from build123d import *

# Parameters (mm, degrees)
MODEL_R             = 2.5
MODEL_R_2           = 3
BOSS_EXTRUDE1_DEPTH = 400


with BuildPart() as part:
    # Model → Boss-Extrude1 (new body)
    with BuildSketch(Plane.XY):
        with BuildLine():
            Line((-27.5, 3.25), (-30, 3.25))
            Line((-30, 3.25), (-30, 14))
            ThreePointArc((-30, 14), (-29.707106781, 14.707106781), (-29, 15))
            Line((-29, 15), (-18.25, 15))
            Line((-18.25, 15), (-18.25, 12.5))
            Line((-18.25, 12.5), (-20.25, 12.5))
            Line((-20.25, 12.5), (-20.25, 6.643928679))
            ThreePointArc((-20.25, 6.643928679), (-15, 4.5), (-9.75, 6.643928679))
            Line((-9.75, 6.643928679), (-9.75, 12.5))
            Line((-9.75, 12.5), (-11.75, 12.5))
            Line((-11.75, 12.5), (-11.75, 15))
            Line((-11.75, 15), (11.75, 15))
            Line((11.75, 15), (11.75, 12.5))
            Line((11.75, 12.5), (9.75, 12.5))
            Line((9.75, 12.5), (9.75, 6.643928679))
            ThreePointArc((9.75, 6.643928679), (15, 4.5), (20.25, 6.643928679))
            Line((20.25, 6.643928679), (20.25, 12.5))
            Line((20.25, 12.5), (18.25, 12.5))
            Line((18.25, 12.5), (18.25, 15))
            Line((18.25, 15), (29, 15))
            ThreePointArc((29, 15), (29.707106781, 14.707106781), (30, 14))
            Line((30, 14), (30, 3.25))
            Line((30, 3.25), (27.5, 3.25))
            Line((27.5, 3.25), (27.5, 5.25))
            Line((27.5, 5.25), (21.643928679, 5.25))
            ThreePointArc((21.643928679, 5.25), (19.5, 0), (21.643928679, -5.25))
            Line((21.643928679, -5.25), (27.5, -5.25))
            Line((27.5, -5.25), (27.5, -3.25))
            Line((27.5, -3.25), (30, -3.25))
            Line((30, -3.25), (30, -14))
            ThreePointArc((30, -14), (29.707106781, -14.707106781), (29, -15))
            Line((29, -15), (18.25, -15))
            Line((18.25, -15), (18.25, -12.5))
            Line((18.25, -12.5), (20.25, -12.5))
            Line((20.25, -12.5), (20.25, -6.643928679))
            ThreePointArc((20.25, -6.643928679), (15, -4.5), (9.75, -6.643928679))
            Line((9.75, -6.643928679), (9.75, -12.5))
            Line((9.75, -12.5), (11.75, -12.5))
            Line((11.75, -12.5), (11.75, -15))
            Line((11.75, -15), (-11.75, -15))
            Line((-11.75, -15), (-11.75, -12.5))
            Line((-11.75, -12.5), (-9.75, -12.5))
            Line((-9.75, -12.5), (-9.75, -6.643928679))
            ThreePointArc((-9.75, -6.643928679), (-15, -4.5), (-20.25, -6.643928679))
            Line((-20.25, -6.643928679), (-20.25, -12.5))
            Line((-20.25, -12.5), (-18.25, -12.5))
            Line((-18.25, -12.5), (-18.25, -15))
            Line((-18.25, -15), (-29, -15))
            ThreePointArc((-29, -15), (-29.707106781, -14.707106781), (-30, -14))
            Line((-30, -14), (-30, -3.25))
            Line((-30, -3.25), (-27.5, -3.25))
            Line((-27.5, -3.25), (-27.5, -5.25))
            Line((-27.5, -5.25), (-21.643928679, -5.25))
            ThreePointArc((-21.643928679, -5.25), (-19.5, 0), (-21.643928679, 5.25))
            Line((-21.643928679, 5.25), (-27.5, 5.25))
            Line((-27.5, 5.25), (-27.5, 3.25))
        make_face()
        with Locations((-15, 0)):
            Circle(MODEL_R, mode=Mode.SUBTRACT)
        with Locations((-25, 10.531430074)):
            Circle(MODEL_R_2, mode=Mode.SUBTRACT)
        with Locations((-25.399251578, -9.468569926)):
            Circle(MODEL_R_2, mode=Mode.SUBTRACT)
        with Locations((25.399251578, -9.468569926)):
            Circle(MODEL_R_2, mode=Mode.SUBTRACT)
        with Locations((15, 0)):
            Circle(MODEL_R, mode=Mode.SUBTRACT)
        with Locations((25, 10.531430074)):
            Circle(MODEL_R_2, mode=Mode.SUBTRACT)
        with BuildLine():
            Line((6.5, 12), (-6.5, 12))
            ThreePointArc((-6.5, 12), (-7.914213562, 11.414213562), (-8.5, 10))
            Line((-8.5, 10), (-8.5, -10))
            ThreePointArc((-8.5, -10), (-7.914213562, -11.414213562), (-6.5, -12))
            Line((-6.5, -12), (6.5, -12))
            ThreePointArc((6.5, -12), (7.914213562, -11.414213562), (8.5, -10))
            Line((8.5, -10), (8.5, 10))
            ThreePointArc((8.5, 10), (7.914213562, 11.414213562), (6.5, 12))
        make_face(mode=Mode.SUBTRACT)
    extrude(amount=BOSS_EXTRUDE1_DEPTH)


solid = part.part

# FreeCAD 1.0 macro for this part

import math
import FreeCAD as App
import Part
import Sketcher
from FreeCAD import Vector

doc = App.newDocument("Part")
params = doc.addObject("Spreadsheet::Sheet", "Params")
for row, (alias, value) in enumerate([
    ("sketch1_diameter", "6 mm"),
    ("sketch1_diameter2", "5 mm"),
    ("sketch1_radius", "1 mm"),
    ("sketch1_radius2", "2 mm"),
    ("sketch1_radius3", "7.5 mm"),
    ("pad1_length", "400 mm"),
], start=1):
    params.set(f"A{row}", alias)
    params.set(f"B{row}", "=" + value)
    params.setAlias(f"B{row}", alias)

body = doc.addObject("PartDesign::Body", "Body")

# Sketch on XY plane
sketch1 = body.newObject("Sketcher::SketchObject", "Sketch")
sketch1.AttachmentSupport = (doc.getObject("XY_Plane"), [""])
sketch1.MapMode = "FlatFace"
sketch1.addGeometry([
    Part.LineSegment(Vector(-30, 3.2, 0), Vector(-27.5, 3.2, 0)),  # 0
    Part.LineSegment(Vector(-27.5, 3.2, 0), Vector(-27.5, 5.2, 0)),  # 1
    Part.LineSegment(Vector(-27.5, 5.2, 0), Vector(-21.6, 5.2, 0)),  # 2
    Part.ArcOfCircle(Part.Circle(Vector(-27, 0, 0), Vector(0, 0, 1), 7.5), math.radians(-44), math.radians(44)),  # 3
    Part.LineSegment(Vector(-21.6, -5.2, 0), Vector(-27.5, -5.2, 0)),  # 4
    Part.LineSegment(Vector(-27.5, -5.2, 0), Vector(-27.5, -3.2, 0)),  # 5
    Part.LineSegment(Vector(-27.5, -3.2, 0), Vector(-30, -3.2, 0)),  # 6
    Part.LineSegment(Vector(-30, -3.2, 0), Vector(-30, -14, 0)),  # 7
    Part.ArcOfCircle(Part.Circle(Vector(-29, -14, 0), Vector(0, 0, 1), 1), math.radians(-180), math.radians(-90)),  # 8
    Part.LineSegment(Vector(-29, -15, 0), Vector(-18.2, -15, 0)),  # 9
    Part.LineSegment(Vector(-18.2, -15, 0), Vector(-18.2, -12.5, 0)),  # 10
    Part.LineSegment(Vector(-18.2, -12.5, 0), Vector(-20.2, -12.5, 0)),  # 11
    Part.LineSegment(Vector(-20.2, -12.5, 0), Vector(-20.2, -6.6, 0)),  # 12
    Part.ArcOfCircle(Part.Circle(Vector(-15, -12, 0), Vector(0, 0, 1), 7.5), math.radians(46), math.radians(134)),  # 13
    Part.LineSegment(Vector(-9.8, -6.6, 0), Vector(-9.8, -12.5, 0)),  # 14
    Part.LineSegment(Vector(-9.8, -12.5, 0), Vector(-11.8, -12.5, 0)),  # 15
    Part.LineSegment(Vector(-11.8, -12.5, 0), Vector(-11.8, -15, 0)),  # 16
    Part.LineSegment(Vector(-11.8, -15, 0), Vector(11.8, -15, 0)),  # 17
    Part.LineSegment(Vector(11.8, -15, 0), Vector(11.8, -12.5, 0)),  # 18
    Part.LineSegment(Vector(11.8, -12.5, 0), Vector(9.8, -12.5, 0)),  # 19
    Part.LineSegment(Vector(9.8, -12.5, 0), Vector(9.8, -6.6, 0)),  # 20
    Part.ArcOfCircle(Part.Circle(Vector(15, -12, 0), Vector(0, 0, 1), 7.5), math.radians(46), math.radians(134)),  # 21
    Part.LineSegment(Vector(20.2, -6.6, 0), Vector(20.2, -12.5, 0)),  # 22
    Part.LineSegment(Vector(20.2, -12.5, 0), Vector(18.2, -12.5, 0)),  # 23
    Part.LineSegment(Vector(18.2, -12.5, 0), Vector(18.2, -15, 0)),  # 24
    Part.LineSegment(Vector(18.2, -15, 0), Vector(29, -15, 0)),  # 25
    Part.ArcOfCircle(Part.Circle(Vector(29, -14, 0), Vector(0, 0, 1), 1), math.radians(-90), math.radians(0)),  # 26
    Part.LineSegment(Vector(30, -14, 0), Vector(30, -3.2, 0)),  # 27
    Part.LineSegment(Vector(30, -3.2, 0), Vector(27.5, -3.2, 0)),  # 28
    Part.LineSegment(Vector(27.5, -3.2, 0), Vector(27.5, -5.2, 0)),  # 29
    Part.LineSegment(Vector(27.5, -5.2, 0), Vector(21.6, -5.2, 0)),  # 30
    Part.ArcOfCircle(Part.Circle(Vector(27, 0, 0), Vector(0, 0, 1), 7.5), math.radians(136), math.radians(224)),  # 31
    Part.LineSegment(Vector(21.6, 5.2, 0), Vector(27.5, 5.2, 0)),  # 32
    Part.LineSegment(Vector(27.5, 5.2, 0), Vector(27.5, 3.2, 0)),  # 33
    Part.LineSegment(Vector(27.5, 3.2, 0), Vector(30, 3.2, 0)),  # 34
    Part.LineSegment(Vector(30, 3.2, 0), Vector(30, 14, 0)),  # 35
    Part.ArcOfCircle(Part.Circle(Vector(29, 14, 0), Vector(0, 0, 1), 1), math.radians(0), math.radians(90)),  # 36
    Part.LineSegment(Vector(29, 15, 0), Vector(18.2, 15, 0)),  # 37
    Part.LineSegment(Vector(18.2, 15, 0), Vector(18.2, 12.5, 0)),  # 38
    Part.LineSegment(Vector(18.2, 12.5, 0), Vector(20.2, 12.5, 0)),  # 39
    Part.LineSegment(Vector(20.2, 12.5, 0), Vector(20.2, 6.6, 0)),  # 40
    Part.ArcOfCircle(Part.Circle(Vector(15, 12, 0), Vector(0, 0, 1), 7.5), math.radians(-134), math.radians(-46)),  # 41
    Part.LineSegment(Vector(9.8, 6.6, 0), Vector(9.8, 12.5, 0)),  # 42
    Part.LineSegment(Vector(9.8, 12.5, 0), Vector(11.8, 12.5, 0)),  # 43
    Part.LineSegment(Vector(11.8, 12.5, 0), Vector(11.8, 15, 0)),  # 44
    Part.LineSegment(Vector(11.8, 15, 0), Vector(-11.8, 15, 0)),  # 45
    Part.LineSegment(Vector(-11.8, 15, 0), Vector(-11.8, 12.5, 0)),  # 46
    Part.LineSegment(Vector(-11.8, 12.5, 0), Vector(-9.8, 12.5, 0)),  # 47
    Part.LineSegment(Vector(-9.8, 12.5, 0), Vector(-9.8, 6.6, 0)),  # 48
    Part.ArcOfCircle(Part.Circle(Vector(-15, 12, 0), Vector(0, 0, 1), 7.5), math.radians(-134), math.radians(-46)),  # 49
    Part.LineSegment(Vector(-20.2, 6.6, 0), Vector(-20.2, 12.5, 0)),  # 50
    Part.LineSegment(Vector(-20.2, 12.5, 0), Vector(-18.2, 12.5, 0)),  # 51
    Part.LineSegment(Vector(-18.2, 12.5, 0), Vector(-18.2, 15, 0)),  # 52
    Part.LineSegment(Vector(-18.2, 15, 0), Vector(-29, 15, 0)),  # 53
    Part.ArcOfCircle(Part.Circle(Vector(-29, 14, 0), Vector(0, 0, 1), 1), math.radians(90), math.radians(180)),  # 54
    Part.LineSegment(Vector(-30, 14, 0), Vector(-30, 3.2, 0)),  # 55
    Part.Circle(Vector(25.4, -9.5, 0), Vector(0, 0, 1), 3),  # 56
    Part.Circle(Vector(15, 0, 0), Vector(0, 0, 1), 2.5),  # 57
    Part.Circle(Vector(-25.4, -9.5, 0), Vector(0, 0, 1), 3),  # 58
    Part.ArcOfCircle(Part.Circle(Vector(6.5, 10, 0), Vector(0, 0, 1), 2), math.radians(0), math.radians(90)),  # 59
    Part.LineSegment(Vector(8.5, 10, 0), Vector(8.5, -10, 0)),  # 60
    Part.ArcOfCircle(Part.Circle(Vector(6.5, -10, 0), Vector(0, 0, 1), 2), math.radians(-90), math.radians(0)),  # 61
    Part.LineSegment(Vector(6.5, -12, 0), Vector(-6.5, -12, 0)),  # 62
    Part.ArcOfCircle(Part.Circle(Vector(-6.5, -10, 0), Vector(0, 0, 1), 2), math.radians(-180), math.radians(-90)),  # 63
    Part.LineSegment(Vector(-8.5, -10, 0), Vector(-8.5, 10, 0)),  # 64
    Part.ArcOfCircle(Part.Circle(Vector(-6.5, 10, 0), Vector(0, 0, 1), 2), math.radians(90), math.radians(180)),  # 65
    Part.LineSegment(Vector(-6.5, 12, 0), Vector(6.5, 12, 0)),  # 66
    Part.Circle(Vector(-15, 0, 0), Vector(0, 0, 1), 2.5),  # 67
    Part.Circle(Vector(25, 10.5, 0), Vector(0, 0, 1), 3),  # 68
    Part.Circle(Vector(-25, 10.5, 0), Vector(0, 0, 1), 3),  # 69
], False)
sketch1.addConstraint([
    Sketcher.Constraint("Coincident", 0, 2, 1, 1),
    Sketcher.Constraint("Coincident", 1, 2, 2, 1),
    Sketcher.Constraint("Coincident", 2, 2, 3, 2),
    Sketcher.Constraint("Coincident", 3, 1, 4, 1),
    Sketcher.Constraint("Coincident", 4, 2, 5, 1),
    Sketcher.Constraint("Coincident", 5, 2, 6, 1),
    Sketcher.Constraint("Coincident", 6, 2, 7, 1),
    Sketcher.Constraint("Tangent", 7, 2, 8, 1),
    Sketcher.Constraint("Tangent", 8, 2, 9, 1),
    Sketcher.Constraint("Coincident", 9, 2, 10, 1),
    Sketcher.Constraint("Coincident", 10, 2, 11, 1),
    Sketcher.Constraint("Coincident", 11, 2, 12, 1),
    Sketcher.Constraint("Coincident", 12, 2, 13, 2),
    Sketcher.Constraint("Coincident", 13, 1, 14, 1),
    Sketcher.Constraint("Coincident", 14, 2, 15, 1),
    Sketcher.Constraint("Coincident", 15, 2, 16, 1),
    Sketcher.Constraint("Coincident", 16, 2, 17, 1),
    Sketcher.Constraint("Coincident", 17, 2, 18, 1),
    Sketcher.Constraint("Coincident", 18, 2, 19, 1),
    Sketcher.Constraint("Coincident", 19, 2, 20, 1),
    Sketcher.Constraint("Coincident", 20, 2, 21, 2),
    Sketcher.Constraint("Coincident", 21, 1, 22, 1),
    Sketcher.Constraint("Coincident", 22, 2, 23, 1),
    Sketcher.Constraint("Coincident", 23, 2, 24, 1),
    Sketcher.Constraint("Coincident", 24, 2, 25, 1),
    Sketcher.Constraint("Tangent", 25, 2, 26, 1),
    Sketcher.Constraint("Tangent", 26, 2, 27, 1),
    Sketcher.Constraint("Coincident", 27, 2, 28, 1),
    Sketcher.Constraint("Coincident", 28, 2, 29, 1),
    Sketcher.Constraint("Coincident", 29, 2, 30, 1),
    Sketcher.Constraint("Coincident", 30, 2, 31, 2),
    Sketcher.Constraint("Coincident", 31, 1, 32, 1),
    Sketcher.Constraint("Coincident", 32, 2, 33, 1),
    Sketcher.Constraint("Coincident", 33, 2, 34, 1),
    Sketcher.Constraint("Coincident", 34, 2, 35, 1),
    Sketcher.Constraint("Tangent", 35, 2, 36, 1),
    Sketcher.Constraint("Tangent", 36, 2, 37, 1),
    Sketcher.Constraint("Coincident", 37, 2, 38, 1),
    Sketcher.Constraint("Coincident", 38, 2, 39, 1),
    Sketcher.Constraint("Coincident", 39, 2, 40, 1),
    Sketcher.Constraint("Coincident", 40, 2, 41, 2),
    Sketcher.Constraint("Coincident", 41, 1, 42, 1),
    Sketcher.Constraint("Coincident", 42, 2, 43, 1),
    Sketcher.Constraint("Coincident", 43, 2, 44, 1),
    Sketcher.Constraint("Coincident", 44, 2, 45, 1),
    Sketcher.Constraint("Coincident", 45, 2, 46, 1),
    Sketcher.Constraint("Coincident", 46, 2, 47, 1),
    Sketcher.Constraint("Coincident", 47, 2, 48, 1),
    Sketcher.Constraint("Coincident", 48, 2, 49, 2),
    Sketcher.Constraint("Coincident", 49, 1, 50, 1),
    Sketcher.Constraint("Coincident", 50, 2, 51, 1),
    Sketcher.Constraint("Coincident", 51, 2, 52, 1),
    Sketcher.Constraint("Coincident", 52, 2, 53, 1),
    Sketcher.Constraint("Tangent", 53, 2, 54, 1),
    Sketcher.Constraint("Tangent", 54, 2, 55, 1),
    Sketcher.Constraint("Coincident", 55, 2, 0, 1),
    Sketcher.Constraint("Tangent", 59, 1, 60, 1),
    Sketcher.Constraint("Tangent", 60, 2, 61, 2),
    Sketcher.Constraint("Tangent", 61, 1, 62, 1),
    Sketcher.Constraint("Tangent", 62, 2, 63, 2),
    Sketcher.Constraint("Tangent", 63, 1, 64, 1),
    Sketcher.Constraint("Tangent", 64, 2, 65, 2),
    Sketcher.Constraint("Tangent", 65, 1, 66, 1),
    Sketcher.Constraint("Tangent", 66, 2, 59, 2),
    Sketcher.Constraint("Horizontal", 0),
    Sketcher.Constraint("Vertical", 1),
    Sketcher.Constraint("Horizontal", 2),
    Sketcher.Constraint("Horizontal", 4),
    Sketcher.Constraint("Vertical", 5),
    Sketcher.Constraint("Horizontal", 6),
    Sketcher.Constraint("Vertical", 7),
    Sketcher.Constraint("Horizontal", 9),
    Sketcher.Constraint("Vertical", 10),
    Sketcher.Constraint("Horizontal", 11),
    Sketcher.Constraint("Vertical", 12),
    Sketcher.Constraint("Vertical", 14),
    Sketcher.Constraint("Horizontal", 15),
    Sketcher.Constraint("Vertical", 16),
    Sketcher.Constraint("Horizontal", 17),
    Sketcher.Constraint("Vertical", 18),
    Sketcher.Constraint("Horizontal", 19),
    Sketcher.Constraint("Vertical", 20),
    Sketcher.Constraint("Vertical", 22),
    Sketcher.Constraint("Horizontal", 23),
    Sketcher.Constraint("Vertical", 24),
    Sketcher.Constraint("Horizontal", 25),
    Sketcher.Constraint("Vertical", 27),
    Sketcher.Constraint("Horizontal", 28),
    Sketcher.Constraint("Vertical", 29),
    Sketcher.Constraint("Horizontal", 30),
    Sketcher.Constraint("Horizontal", 32),
    Sketcher.Constraint("Vertical", 33),
    Sketcher.Constraint("Horizontal", 34),
    Sketcher.Constraint("Vertical", 35),
    Sketcher.Constraint("Horizontal", 37),
    Sketcher.Constraint("Vertical", 38),
    Sketcher.Constraint("Horizontal", 39),
    Sketcher.Constraint("Vertical", 40),
    Sketcher.Constraint("Vertical", 42),
    Sketcher.Constraint("Horizontal", 43),
    Sketcher.Constraint("Vertical", 44),
    Sketcher.Constraint("Horizontal", 45),
    Sketcher.Constraint("Vertical", 46),
    Sketcher.Constraint("Horizontal", 47),
    Sketcher.Constraint("Vertical", 48),
    Sketcher.Constraint("Vertical", 50),
    Sketcher.Constraint("Horizontal", 51),
    Sketcher.Constraint("Vertical", 52),
    Sketcher.Constraint("Horizontal", 53),
    Sketcher.Constraint("Vertical", 55),
    Sketcher.Constraint("Vertical", 60),
    Sketcher.Constraint("Horizontal", 62),
    Sketcher.Constraint("Vertical", 64),
    Sketcher.Constraint("Horizontal", 66),
    Sketcher.Constraint("Equal", 3, 13),
    Sketcher.Constraint("Equal", 13, 21),
    Sketcher.Constraint("Equal", 8, 26),
    Sketcher.Constraint("Equal", 21, 31),
    Sketcher.Constraint("Equal", 26, 36),
    Sketcher.Constraint("Equal", 31, 41),
    Sketcher.Constraint("Equal", 41, 49),
    Sketcher.Constraint("Equal", 36, 54),
    Sketcher.Constraint("Equal", 56, 58),
    Sketcher.Constraint("Equal", 59, 61),
    Sketcher.Constraint("Equal", 61, 63),
    Sketcher.Constraint("Equal", 63, 65),
    Sketcher.Constraint("Equal", 57, 67),
    Sketcher.Constraint("Equal", 58, 68),
    Sketcher.Constraint("Equal", 68, 69),
    Sketcher.Constraint("Symmetric", 3, 3, 31, 3, -1, 1),
    Sketcher.Constraint("Symmetric", 8, 3, 36, 3, -1, 1),
    Sketcher.Constraint("Symmetric", 13, 3, 41, 3, -1, 1),
    Sketcher.Constraint("Symmetric", 21, 3, 49, 3, -1, 1),
    Sketcher.Constraint("Symmetric", 26, 3, 54, 3, -1, 1),
    Sketcher.Constraint("Symmetric", 59, 3, 63, 3, -1, 1),
    Sketcher.Constraint("Symmetric", 57, 3, 67, 3, -1, 1),
    Sketcher.Constraint("Symmetric", 0, 2, 28, 2, -1, 1),
    Sketcher.Constraint("Symmetric", 4, 2, 32, 2, -1, 1),
    Sketcher.Constraint("Symmetric", 10, 2, 38, 2, -1, 1),
    Sketcher.Constraint("Symmetric", 14, 2, 42, 2, -1, 1),
    Sketcher.Constraint("Symmetric", 16, 2, 44, 2, -1, 1),
    Sketcher.Constraint("Symmetric", 18, 2, 46, 2, -1, 1),
    Sketcher.Constraint("Symmetric", 22, 2, 50, 2, -1, 1),
    Sketcher.Constraint("Symmetric", 13, 3, 21, 3, -2),
    Sketcher.Constraint("Symmetric", 8, 3, 26, 3, -2),
    Sketcher.Constraint("Symmetric", 56, 3, 58, 3, -2),
    Sketcher.Constraint("Symmetric", 68, 3, 69, 3, -2),
    Sketcher.Constraint("Symmetric", 15, 2, 18, 2, -2),
    Sketcher.Constraint("Symmetric", 11, 2, 22, 2, -2),
    Sketcher.Constraint("Symmetric", 5, 2, 28, 2, -2),
    Sketcher.Constraint("Symmetric", 3, 1, 30, 2, -2),
    Sketcher.Constraint("PointOnObject", 57, 3, -1),
    Sketcher.Constraint("Horizontal", 12, 2, 13, 1),
    Sketcher.Constraint("Horizontal", 11, 2, 14, 2),
    Sketcher.Constraint("Horizontal", 9, 2, 16, 2),
    Sketcher.Constraint("Horizontal", 13, 1, 20, 2),
    Sketcher.Constraint("Horizontal", 2, 2, 31, 1),
    Sketcher.Constraint("Horizontal", 0, 2, 33, 2),
    Sketcher.Constraint("Horizontal", 40, 2, 41, 1),
    Sketcher.Constraint("Horizontal", 41, 1, 48, 2),
    Sketcher.Constraint("Horizontal", 21, 3, 61, 1),
    Sketcher.Constraint("Vertical", 41, 3, 57, 3),
    Sketcher.Constraint("Vertical", 24, 2, 37, 2),
    Sketcher.Constraint("Vertical", 10, 2, 51, 2),
    Sketcher.Constraint("Equal", 11, 15),
    Sketcher.Constraint("Equal", 51, 1),
    Sketcher.Constraint("Equal", 53, 7),
    Sketcher.Constraint("Equal", 34, 10),
    Sketcher.Constraint("Equal", 32, 12),
    Sketcher.Constraint("Diameter", 56, 6.0),
    Sketcher.Constraint("Diameter", 57, 5.0),
    Sketcher.Constraint("Radius", 8, 1.0),
    Sketcher.Constraint("Radius", 59, 2.0),
    Sketcher.Constraint("Radius", 3, 7.5),
    Sketcher.Constraint("DistanceX", 11, 2, 11, 1, 2.0),
    Sketcher.Constraint("DistanceX", 62, 2, 62, 1, 13.0),
    Sketcher.Constraint("DistanceY", 60, 2, 60, 1, 20.0),
    Sketcher.Constraint("DistanceX", 0, 1, 0, 2, 2.5),
    Sketcher.Constraint("DistanceX", 17, 1, 17, 2, 23.5),
    Sketcher.Constraint("DistanceX", 3, 3, -1, 1, 27.0),
    Sketcher.Constraint("DistanceX", 8, 3, -1, 1, 29.0),
    Sketcher.Constraint("DistanceY", 8, 3, -1, 1, 14.0),
    Sketcher.Constraint("DistanceX", -1, 1, 68, 3, 25.0),
    Sketcher.Constraint("DistanceX", -1, 1, 56, 3, 25.399252),
    Sketcher.Constraint("DistanceY", 56, 3, -1, 1, 9.46857),
    Sketcher.Constraint("DistanceY", -1, 1, 68, 3, 10.53143),
])
sketch1.setExpression("Constraints[169]", "Params.sketch1_diameter")
sketch1.setExpression("Constraints[170]", "Params.sketch1_diameter2")
sketch1.setExpression("Constraints[171]", "Params.sketch1_radius")
sketch1.setExpression("Constraints[172]", "Params.sketch1_radius2")
sketch1.setExpression("Constraints[173]", "Params.sketch1_radius3")
pad1 = body.newObject("PartDesign::Pad", "Pad")
pad1.Profile = sketch1
pad1.setExpression("Length", "Params.pad1_length")

doc.recompute()
